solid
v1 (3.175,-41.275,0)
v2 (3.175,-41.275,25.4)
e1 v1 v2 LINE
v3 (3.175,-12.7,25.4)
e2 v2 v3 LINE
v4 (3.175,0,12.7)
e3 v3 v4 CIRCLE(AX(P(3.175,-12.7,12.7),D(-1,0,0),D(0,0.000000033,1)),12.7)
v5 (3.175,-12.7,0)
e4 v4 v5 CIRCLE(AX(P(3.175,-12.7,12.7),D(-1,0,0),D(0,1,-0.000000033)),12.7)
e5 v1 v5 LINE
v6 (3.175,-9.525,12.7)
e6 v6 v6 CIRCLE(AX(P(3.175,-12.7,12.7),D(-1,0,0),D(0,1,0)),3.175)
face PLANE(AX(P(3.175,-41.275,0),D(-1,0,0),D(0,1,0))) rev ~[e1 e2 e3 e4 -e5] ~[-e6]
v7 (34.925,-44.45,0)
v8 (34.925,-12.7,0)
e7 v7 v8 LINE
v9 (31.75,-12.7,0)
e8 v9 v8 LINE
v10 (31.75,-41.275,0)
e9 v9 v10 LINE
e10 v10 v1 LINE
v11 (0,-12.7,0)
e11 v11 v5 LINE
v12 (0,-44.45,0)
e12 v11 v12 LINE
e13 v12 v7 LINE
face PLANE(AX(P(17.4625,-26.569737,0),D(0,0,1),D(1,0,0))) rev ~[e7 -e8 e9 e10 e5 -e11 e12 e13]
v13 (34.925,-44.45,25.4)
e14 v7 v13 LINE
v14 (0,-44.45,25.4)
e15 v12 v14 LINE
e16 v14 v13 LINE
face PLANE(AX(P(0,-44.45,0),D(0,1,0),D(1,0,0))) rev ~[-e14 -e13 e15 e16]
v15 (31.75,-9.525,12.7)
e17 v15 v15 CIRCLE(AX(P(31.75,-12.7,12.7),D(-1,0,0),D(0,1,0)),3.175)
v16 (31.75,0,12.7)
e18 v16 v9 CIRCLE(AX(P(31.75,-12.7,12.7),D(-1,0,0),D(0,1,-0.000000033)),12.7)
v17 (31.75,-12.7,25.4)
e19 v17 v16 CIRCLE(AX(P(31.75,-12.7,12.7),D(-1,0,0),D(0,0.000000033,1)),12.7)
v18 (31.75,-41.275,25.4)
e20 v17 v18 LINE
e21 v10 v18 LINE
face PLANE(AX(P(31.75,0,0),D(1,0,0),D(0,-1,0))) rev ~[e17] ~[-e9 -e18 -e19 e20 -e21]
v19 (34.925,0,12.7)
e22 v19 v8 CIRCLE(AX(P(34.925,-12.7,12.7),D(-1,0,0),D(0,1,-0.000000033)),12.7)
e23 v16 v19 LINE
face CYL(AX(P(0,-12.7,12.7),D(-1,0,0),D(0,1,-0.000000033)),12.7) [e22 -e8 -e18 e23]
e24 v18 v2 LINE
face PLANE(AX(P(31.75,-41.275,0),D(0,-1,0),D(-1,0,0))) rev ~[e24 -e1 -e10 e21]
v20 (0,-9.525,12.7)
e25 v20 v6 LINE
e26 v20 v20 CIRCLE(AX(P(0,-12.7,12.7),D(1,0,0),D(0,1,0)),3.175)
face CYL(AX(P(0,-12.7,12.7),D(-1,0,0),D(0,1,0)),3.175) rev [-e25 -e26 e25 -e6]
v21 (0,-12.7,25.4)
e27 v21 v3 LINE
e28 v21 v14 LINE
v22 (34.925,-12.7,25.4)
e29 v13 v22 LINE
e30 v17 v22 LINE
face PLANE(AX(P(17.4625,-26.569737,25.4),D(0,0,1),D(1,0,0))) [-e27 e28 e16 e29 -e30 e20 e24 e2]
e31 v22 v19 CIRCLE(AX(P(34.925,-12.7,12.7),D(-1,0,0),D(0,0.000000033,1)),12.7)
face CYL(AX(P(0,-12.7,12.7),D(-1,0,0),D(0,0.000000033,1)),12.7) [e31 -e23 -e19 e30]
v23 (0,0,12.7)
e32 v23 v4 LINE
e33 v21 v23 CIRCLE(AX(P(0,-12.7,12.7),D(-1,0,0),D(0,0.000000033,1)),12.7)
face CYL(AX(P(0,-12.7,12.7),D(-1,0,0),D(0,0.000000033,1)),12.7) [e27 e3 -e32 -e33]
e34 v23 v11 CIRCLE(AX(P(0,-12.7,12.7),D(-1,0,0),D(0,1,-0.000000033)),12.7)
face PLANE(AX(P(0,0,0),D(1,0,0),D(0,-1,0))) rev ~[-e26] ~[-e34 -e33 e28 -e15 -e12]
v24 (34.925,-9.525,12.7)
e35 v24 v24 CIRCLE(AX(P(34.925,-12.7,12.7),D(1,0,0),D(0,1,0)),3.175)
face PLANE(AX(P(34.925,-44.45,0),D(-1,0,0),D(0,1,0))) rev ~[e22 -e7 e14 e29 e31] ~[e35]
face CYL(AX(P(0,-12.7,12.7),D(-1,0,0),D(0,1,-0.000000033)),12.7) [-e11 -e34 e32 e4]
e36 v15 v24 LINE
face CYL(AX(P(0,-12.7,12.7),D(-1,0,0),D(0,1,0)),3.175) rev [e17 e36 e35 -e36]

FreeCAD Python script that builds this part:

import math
import FreeCAD as App
import Part
import Sketcher

V = App.Vector
Q = App.Units.Quantity


def add_polygon(sketch, points):
    """Adds a closed chain of lines whose ends are joined by coincident constraints."""
    first, n = sketch.GeometryCount, len(points)
    for a, b in zip(points, points[1:] + points[:1]):
        sketch.addGeometry(Part.LineSegment(App.Vector(*a, 0), App.Vector(*b, 0)), False)
    for i in range(n):
        sketch.addConstraint(Sketcher.Constraint("Coincident", first + i, 2, first + (i + 1) % n, 1))

doc = App.newDocument("Part")
body = doc.addObject("PartDesign::Body", "Body")

# Sketch on XY plane
sketch1 = doc.addObject("Sketcher::SketchObject", "Sketch")
body.addObject(sketch1)
sketch1.AttachmentSupport = (doc.XY_Plane, [""])
sketch1.MapMode = "FlatFace"
add_polygon(sketch1, [(3.2, 0), (0, 0), (0, -44.5), (34.9, -44.5), (34.9, 0), (31.8, 0), (31.8, -41.3), (3.2, -41.3)])  # lines 0-7
sketch1.addConstraint(Sketcher.Constraint("Horizontal", 0))
sketch1.addConstraint(Sketcher.Constraint("Vertical", 1))
sketch1.addConstraint(Sketcher.Constraint("Horizontal", 2))
sketch1.addConstraint(Sketcher.Constraint("Vertical", 3))
sketch1.addConstraint(Sketcher.Constraint("Horizontal", 4))
sketch1.addConstraint(Sketcher.Constraint("Vertical", 5))
sketch1.addConstraint(Sketcher.Constraint("Horizontal", 6))
sketch1.addConstraint(Sketcher.Constraint("Vertical", 7))
sketch1.addConstraint(Sketcher.Constraint("Coincident", 0, 2, -1, 1))
sketch1.addConstraint(Sketcher.Constraint("PointOnObject", 3, 2, -1))
sketch1.addConstraint(Sketcher.Constraint("Equal", 0, 4))
sketch1.addConstraint(Sketcher.Constraint("DistanceY", 1, 2, 1, 1, Q("1.75 in")))
sketch1.addConstraint(Sketcher.Constraint("DistanceX", 0, 2, 0, 1, Q("0.125 in")))
sketch1.addConstraint(Sketcher.Constraint("DistanceX", 2, 1, 2, 2, Q("1.375 in")))
sketch1.addConstraint(Sketcher.Constraint("DistanceY", 5, 2, 5, 1, Q("1.625 in")))
pad1 = doc.addObject("PartDesign::Pad", "Pad")
body.addObject(pad1)
pad1.Profile = sketch1
pad1.Length = Q("1 in")

# Sketch on YZ plane
sketch2 = doc.addObject("Sketcher::SketchObject", "Sketch001")
body.addObject(sketch2)
sketch2.AttachmentSupport = (doc.YZ_Plane, [""])
sketch2.MapMode = "FlatFace"
sketch2.addGeometry(Part.LineSegment(V(0, 0, 0), V(0, 12.7, 0)), False)
sketch2.addGeometry(Part.ArcOfCircle(Part.Circle(V(-12.7, 12.7, 0), V(0, 0, 1), 12.7), math.radians(-90), math.radians(0)), False)
sketch2.addGeometry(Part.LineSegment(V(-12.7, 0, 0), V(0, 0, 0)), False)
sketch2.addGeometry(Part.ArcOfCircle(Part.Circle(V(-12.7, 12.7, 0), V(0, 0, 1), 12.7), math.radians(0), math.radians(90)), False)
sketch2.addGeometry(Part.LineSegment(V(0, 12.7, 0), V(0, 25.4, 0)), False)
sketch2.addGeometry(Part.LineSegment(V(0, 25.4, 0), V(-12.7, 25.4, 0)), False)
sketch2.addGeometry(Part.Circle(V(-12.7, 12.7, 0), V(0, 0, 1), 3.2), False)
sketch2.addConstraint(Sketcher.Constraint("Tangent", 0, 2, 1, 2))
sketch2.addConstraint(Sketcher.Constraint("Tangent", 1, 1, 2, 1))
sketch2.addConstraint(Sketcher.Constraint("Coincident", 2, 2, 0, 1))
sketch2.addConstraint(Sketcher.Constraint("Tangent", 3, 1, 4, 1))
sketch2.addConstraint(Sketcher.Constraint("Coincident", 4, 2, 5, 1))
sketch2.addConstraint(Sketcher.Constraint("Tangent", 5, 2, 3, 2))
sketch2.addConstraint(Sketcher.Constraint("Vertical", 0))
sketch2.addConstraint(Sketcher.Constraint("Horizontal", 2))
sketch2.addConstraint(Sketcher.Constraint("Vertical", 4))
sketch2.addConstraint(Sketcher.Constraint("Horizontal", 5))
sketch2.addConstraint(Sketcher.Constraint("Coincident", 2, 2, -1, 1))
sketch2.addConstraint(Sketcher.Constraint("Coincident", 3, 3, 1, 3))
sketch2.addConstraint(Sketcher.Constraint("Coincident", 6, 3, 1, 3))
sketch2.addConstraint(Sketcher.Constraint("Equal", 1, 3))
sketch2.addConstraint(Sketcher.Constraint("Radius", 1, Q("0.5 in")))
sketch2.addConstraint(Sketcher.Constraint("Diameter", 6, Q("0.25 in")))
pocket1 = doc.addObject("PartDesign::Pocket", "Pocket")
body.addObject(pocket1)
pocket1.Profile = sketch2
pocket1.Length = Q("1.375 in")
pocket1.Reversed = True

doc.recompute()
